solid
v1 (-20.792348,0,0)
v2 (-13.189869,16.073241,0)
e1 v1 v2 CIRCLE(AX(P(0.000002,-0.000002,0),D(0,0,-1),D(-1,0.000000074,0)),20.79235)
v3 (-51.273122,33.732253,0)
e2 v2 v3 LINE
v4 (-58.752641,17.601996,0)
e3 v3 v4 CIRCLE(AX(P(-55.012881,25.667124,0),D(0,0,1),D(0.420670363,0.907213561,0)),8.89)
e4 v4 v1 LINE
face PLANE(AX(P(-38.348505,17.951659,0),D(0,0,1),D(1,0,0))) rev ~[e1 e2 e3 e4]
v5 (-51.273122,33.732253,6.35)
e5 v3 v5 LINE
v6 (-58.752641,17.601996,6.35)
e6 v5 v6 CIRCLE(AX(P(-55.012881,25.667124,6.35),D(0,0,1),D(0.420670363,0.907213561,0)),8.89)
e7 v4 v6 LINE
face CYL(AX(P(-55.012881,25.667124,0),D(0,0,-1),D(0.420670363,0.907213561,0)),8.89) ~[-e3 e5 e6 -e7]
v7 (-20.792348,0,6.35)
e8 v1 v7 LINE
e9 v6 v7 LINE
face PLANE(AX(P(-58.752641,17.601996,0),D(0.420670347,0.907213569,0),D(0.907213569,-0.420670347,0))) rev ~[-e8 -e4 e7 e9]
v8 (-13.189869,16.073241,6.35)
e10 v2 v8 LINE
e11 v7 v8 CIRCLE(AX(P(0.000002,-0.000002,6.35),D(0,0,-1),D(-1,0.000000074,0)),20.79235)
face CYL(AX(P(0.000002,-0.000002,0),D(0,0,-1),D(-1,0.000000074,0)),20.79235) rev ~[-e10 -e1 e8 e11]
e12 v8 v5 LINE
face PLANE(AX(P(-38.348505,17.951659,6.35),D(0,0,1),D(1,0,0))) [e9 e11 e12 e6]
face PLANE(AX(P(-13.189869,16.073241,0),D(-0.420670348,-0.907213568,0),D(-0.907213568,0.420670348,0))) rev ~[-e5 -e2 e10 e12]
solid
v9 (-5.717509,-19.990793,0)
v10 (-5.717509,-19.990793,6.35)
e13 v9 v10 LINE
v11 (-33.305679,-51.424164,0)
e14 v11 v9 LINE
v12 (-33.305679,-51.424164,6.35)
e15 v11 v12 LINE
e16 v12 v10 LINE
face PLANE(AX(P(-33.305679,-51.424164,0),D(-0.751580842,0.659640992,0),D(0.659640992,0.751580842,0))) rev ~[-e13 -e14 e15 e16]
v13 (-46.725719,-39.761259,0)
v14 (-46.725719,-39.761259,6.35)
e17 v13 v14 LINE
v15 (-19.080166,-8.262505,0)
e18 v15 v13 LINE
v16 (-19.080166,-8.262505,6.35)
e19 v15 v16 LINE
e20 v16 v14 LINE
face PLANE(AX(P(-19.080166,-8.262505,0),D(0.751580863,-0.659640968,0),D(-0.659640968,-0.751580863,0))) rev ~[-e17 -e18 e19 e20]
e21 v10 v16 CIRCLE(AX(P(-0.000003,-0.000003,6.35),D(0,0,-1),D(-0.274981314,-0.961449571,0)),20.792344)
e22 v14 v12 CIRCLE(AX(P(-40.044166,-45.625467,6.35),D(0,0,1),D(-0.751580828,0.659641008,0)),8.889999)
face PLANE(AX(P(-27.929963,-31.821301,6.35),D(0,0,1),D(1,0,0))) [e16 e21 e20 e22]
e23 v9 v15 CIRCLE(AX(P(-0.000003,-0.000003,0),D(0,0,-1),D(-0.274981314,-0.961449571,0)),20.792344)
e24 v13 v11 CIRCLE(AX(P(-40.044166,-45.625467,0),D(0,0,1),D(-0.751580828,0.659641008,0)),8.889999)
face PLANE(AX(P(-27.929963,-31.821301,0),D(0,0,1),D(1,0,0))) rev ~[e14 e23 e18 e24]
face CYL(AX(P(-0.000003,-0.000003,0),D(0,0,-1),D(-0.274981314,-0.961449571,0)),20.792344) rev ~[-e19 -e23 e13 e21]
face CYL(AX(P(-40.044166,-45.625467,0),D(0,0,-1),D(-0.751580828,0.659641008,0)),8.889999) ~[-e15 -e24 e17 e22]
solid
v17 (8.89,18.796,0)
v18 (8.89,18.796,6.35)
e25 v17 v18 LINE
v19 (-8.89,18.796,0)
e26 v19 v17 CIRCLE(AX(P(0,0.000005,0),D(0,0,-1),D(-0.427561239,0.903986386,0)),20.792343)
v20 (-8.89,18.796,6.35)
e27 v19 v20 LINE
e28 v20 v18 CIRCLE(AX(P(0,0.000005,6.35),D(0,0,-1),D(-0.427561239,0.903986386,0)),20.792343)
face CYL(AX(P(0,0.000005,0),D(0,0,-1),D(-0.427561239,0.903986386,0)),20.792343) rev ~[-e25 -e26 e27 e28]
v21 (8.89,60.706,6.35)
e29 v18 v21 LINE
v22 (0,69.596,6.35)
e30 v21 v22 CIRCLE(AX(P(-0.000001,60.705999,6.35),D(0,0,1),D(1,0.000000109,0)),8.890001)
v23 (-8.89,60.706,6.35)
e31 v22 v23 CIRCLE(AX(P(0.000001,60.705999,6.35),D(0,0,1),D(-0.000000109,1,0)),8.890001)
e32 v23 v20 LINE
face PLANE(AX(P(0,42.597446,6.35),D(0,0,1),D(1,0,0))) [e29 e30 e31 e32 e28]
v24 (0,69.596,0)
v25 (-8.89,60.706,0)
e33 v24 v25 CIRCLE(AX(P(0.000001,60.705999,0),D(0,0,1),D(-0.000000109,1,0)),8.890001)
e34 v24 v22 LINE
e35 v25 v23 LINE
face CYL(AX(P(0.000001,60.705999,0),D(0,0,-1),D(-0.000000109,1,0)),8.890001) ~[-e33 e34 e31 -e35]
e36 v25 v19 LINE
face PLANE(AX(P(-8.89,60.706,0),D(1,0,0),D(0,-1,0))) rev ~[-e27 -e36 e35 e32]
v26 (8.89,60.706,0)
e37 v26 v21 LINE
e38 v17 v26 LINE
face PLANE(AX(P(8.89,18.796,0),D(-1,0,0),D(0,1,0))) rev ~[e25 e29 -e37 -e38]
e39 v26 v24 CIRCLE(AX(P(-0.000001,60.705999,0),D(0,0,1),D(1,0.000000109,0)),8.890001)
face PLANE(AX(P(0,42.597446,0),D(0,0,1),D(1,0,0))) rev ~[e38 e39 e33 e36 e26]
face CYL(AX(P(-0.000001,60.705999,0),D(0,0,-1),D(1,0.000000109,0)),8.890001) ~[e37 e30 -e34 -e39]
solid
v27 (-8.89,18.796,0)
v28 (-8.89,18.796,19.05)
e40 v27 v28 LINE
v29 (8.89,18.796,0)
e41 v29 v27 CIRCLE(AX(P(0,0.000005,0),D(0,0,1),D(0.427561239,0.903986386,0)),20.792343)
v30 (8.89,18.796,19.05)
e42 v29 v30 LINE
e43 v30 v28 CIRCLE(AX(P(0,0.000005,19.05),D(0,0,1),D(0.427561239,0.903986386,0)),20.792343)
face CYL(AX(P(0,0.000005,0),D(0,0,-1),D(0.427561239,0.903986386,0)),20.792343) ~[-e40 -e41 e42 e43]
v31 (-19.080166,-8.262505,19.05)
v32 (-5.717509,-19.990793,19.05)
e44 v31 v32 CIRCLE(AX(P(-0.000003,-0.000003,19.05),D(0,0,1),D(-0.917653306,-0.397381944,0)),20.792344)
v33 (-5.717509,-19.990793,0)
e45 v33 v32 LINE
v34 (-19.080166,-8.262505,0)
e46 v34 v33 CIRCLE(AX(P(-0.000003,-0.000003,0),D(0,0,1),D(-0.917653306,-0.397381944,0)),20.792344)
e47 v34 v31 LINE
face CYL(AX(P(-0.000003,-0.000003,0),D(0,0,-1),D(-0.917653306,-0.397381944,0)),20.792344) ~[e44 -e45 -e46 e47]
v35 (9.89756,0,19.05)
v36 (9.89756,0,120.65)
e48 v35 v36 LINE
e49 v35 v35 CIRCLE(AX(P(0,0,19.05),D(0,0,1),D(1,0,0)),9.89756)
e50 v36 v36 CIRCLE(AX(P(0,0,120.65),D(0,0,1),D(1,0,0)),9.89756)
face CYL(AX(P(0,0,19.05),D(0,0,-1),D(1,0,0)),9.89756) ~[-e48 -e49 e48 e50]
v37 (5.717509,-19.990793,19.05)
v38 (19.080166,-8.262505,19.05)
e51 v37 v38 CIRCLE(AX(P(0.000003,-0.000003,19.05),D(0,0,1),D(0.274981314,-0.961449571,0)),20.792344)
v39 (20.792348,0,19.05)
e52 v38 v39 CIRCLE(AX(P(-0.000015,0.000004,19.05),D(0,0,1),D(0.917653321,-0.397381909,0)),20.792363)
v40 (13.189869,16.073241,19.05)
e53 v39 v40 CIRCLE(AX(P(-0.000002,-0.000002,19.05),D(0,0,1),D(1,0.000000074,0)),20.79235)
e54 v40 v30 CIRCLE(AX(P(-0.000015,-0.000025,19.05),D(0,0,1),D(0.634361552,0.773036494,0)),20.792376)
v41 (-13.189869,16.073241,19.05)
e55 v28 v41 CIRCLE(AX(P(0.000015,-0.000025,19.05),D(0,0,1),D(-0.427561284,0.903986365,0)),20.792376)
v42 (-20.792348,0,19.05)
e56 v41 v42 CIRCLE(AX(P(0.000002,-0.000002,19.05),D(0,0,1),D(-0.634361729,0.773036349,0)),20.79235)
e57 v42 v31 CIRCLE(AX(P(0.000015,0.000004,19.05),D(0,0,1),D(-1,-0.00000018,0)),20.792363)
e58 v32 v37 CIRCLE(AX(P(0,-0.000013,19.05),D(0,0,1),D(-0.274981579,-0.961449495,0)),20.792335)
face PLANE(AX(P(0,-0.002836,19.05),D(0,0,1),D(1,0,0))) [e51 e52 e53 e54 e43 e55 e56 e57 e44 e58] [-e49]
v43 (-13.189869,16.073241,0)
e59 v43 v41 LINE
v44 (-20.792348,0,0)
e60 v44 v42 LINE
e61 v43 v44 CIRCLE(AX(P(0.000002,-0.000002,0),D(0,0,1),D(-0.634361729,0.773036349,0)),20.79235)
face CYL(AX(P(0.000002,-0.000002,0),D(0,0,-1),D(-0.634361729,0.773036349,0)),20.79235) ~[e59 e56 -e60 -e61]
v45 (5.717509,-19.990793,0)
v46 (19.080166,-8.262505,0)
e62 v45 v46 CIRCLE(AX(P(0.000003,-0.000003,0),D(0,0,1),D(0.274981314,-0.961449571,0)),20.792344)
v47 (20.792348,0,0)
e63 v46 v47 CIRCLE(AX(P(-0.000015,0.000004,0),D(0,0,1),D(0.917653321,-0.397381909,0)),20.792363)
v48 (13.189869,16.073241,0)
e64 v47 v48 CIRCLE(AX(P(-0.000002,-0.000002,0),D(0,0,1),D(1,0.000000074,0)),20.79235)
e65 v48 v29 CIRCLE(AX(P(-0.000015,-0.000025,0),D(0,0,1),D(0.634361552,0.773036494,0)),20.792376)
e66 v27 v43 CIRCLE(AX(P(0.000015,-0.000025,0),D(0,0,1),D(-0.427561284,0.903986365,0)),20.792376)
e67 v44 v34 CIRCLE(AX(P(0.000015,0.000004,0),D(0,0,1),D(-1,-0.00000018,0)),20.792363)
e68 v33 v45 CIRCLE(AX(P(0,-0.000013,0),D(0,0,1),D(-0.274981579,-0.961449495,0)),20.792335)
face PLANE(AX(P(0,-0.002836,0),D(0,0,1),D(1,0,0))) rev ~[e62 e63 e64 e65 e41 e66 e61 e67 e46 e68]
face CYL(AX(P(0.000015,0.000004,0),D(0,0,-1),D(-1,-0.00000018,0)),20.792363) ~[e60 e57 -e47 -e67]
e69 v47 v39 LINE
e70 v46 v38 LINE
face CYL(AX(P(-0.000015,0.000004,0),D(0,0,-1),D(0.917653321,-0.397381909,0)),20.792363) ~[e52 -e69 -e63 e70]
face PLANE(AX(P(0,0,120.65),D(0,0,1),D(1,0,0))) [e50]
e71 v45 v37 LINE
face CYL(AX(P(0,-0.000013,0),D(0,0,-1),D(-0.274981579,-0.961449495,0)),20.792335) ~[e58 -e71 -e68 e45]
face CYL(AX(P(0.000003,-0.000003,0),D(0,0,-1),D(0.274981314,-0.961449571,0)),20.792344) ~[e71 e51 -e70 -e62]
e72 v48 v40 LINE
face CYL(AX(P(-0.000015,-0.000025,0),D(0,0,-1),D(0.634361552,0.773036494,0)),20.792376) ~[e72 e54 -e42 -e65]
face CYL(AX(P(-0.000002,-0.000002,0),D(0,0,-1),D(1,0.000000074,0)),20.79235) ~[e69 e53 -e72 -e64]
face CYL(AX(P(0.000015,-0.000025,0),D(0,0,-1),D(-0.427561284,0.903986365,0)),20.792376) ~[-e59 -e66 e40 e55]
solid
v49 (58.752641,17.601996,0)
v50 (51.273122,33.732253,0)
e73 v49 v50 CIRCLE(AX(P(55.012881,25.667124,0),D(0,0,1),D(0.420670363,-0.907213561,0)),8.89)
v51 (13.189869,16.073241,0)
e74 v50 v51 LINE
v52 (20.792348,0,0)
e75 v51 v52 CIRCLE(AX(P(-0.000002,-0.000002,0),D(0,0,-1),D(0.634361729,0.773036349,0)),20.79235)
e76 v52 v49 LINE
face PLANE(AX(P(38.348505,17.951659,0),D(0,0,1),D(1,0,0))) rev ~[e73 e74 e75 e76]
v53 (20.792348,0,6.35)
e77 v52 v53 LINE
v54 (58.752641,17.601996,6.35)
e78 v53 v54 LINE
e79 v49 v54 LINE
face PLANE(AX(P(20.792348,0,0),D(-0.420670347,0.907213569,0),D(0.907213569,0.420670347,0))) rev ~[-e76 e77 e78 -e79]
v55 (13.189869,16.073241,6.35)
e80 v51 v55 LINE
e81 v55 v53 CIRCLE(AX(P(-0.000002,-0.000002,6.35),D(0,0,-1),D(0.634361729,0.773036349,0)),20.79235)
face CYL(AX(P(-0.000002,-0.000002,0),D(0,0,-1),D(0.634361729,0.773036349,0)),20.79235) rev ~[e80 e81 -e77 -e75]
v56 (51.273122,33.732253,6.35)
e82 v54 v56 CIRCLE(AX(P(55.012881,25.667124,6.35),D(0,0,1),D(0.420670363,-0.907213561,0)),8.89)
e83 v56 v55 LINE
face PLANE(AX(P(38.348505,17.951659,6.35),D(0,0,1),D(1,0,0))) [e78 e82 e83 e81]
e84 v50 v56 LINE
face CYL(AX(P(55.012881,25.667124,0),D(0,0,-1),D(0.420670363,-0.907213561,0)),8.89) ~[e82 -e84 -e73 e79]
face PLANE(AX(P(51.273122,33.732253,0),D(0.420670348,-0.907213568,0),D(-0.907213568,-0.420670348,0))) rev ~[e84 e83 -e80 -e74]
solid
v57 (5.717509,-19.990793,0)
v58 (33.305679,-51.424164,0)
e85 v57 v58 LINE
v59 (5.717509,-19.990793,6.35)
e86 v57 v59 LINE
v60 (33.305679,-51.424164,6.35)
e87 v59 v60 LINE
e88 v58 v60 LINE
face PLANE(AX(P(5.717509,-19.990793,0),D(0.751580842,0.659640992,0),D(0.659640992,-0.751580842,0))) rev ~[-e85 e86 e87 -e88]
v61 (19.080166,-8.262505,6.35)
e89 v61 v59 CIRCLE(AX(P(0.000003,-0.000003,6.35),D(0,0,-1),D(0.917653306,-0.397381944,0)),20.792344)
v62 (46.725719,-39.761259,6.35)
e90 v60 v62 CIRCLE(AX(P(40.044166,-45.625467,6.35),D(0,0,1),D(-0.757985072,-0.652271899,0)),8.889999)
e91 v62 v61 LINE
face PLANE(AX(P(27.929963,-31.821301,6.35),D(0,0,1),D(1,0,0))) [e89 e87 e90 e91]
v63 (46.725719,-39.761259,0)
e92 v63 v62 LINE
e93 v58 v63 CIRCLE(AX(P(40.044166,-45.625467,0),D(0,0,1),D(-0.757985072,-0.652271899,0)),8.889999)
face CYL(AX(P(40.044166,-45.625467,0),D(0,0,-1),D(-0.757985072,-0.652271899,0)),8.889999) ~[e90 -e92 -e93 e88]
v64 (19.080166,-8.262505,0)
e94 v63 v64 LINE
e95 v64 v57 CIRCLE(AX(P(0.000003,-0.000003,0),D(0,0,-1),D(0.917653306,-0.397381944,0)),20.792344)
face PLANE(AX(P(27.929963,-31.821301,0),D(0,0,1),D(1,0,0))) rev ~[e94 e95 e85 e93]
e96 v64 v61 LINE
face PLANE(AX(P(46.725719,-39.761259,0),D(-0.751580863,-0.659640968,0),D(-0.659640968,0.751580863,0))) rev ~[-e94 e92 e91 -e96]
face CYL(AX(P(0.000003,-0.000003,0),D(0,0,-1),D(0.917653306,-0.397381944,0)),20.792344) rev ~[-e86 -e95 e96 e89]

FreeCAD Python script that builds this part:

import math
import FreeCAD as App
import Part
import Sketcher
from FreeCAD import Vector
Q = App.Units.Quantity

doc = App.newDocument("Part")
body = doc.addObject("PartDesign::Body", "Body")
body.AllowCompound = True

# Sketch on XY plane
sketch1 = body.newObject("Sketcher::SketchObject", "Sketch")
sketch1.AttachmentSupport = (doc.getObject("XY_Plane"), [""])
sketch1.MapMode = "FlatFace"
sketch1.addGeometry([
    Part.ArcOfCircle(Part.Circle(Vector(0, 0, 0), Vector(0, 0, 1), 21), math.radians(129), math.radians(180)),  # 0
    Part.LineSegment(Vector(-13, 16, 0), Vector(-51, 34, 0)),  # 1
    Part.ArcOfCircle(Part.Circle(Vector(-55, 26, 0), Vector(0, 0, 1), 9), math.radians(65), math.radians(245)),  # 2
    Part.LineSegment(Vector(-59, 18, 0), Vector(-21, 0, 0)),  # 3
    Part.ArcOfCircle(Part.Circle(Vector(0, 0, 0), Vector(0, 0, 1), 21), math.radians(65), math.radians(115)),  # 4
    Part.LineSegment(Vector(9, 19, 0), Vector(9, 61, 0)),  # 5
    Part.ArcOfCircle(Part.Circle(Vector(0, 61, 0), Vector(0, 0, 1), 9), math.radians(0), math.radians(90)),  # 6
    Part.ArcOfCircle(Part.Circle(Vector(0, 61, 0), Vector(0, 0, 1), 9), math.radians(90), math.radians(180)),  # 7
    Part.LineSegment(Vector(-9, 61, 0), Vector(-9, 19, 0)),  # 8
    Part.ArcOfCircle(Part.Circle(Vector(0, 0, 0), Vector(0, 0, 1), 21), math.radians(0), math.radians(51)),  # 9
    Part.LineSegment(Vector(21, 0, 0), Vector(59, 18, 0)),  # 10
    Part.ArcOfCircle(Part.Circle(Vector(55, 26, 0), Vector(0, 0, 1), 9), math.radians(-65), math.radians(115)),  # 11
    Part.LineSegment(Vector(51, 34, 0), Vector(13, 16, 0)),  # 12
    Part.LineSegment(Vector(47, -40, 0), Vector(19, -8, 0)),  # 13
    Part.ArcOfCircle(Part.Circle(Vector(0, 0, 0), Vector(0, 0, 1), 21), math.radians(-74), math.radians(-23)),  # 14
    Part.LineSegment(Vector(6, -20, 0), Vector(33, -51, 0)),  # 15
    Part.ArcOfCircle(Part.Circle(Vector(40, -46, 0), Vector(0, 0, 1), 9), math.radians(-139), math.radians(41)),  # 16
    Part.LineSegment(Vector(-33, -51, 0), Vector(-6, -20, 0)),  # 17
    Part.ArcOfCircle(Part.Circle(Vector(0, 0, 0), Vector(0, 0, 1), 21), math.radians(-157), math.radians(-106)),  # 18
    Part.LineSegment(Vector(-19, -8, 0), Vector(-47, -40, 0)),  # 19
    Part.ArcOfCircle(Part.Circle(Vector(-40, -46, 0), Vector(0, 0, 1), 9), math.radians(139), math.radians(319)),  # 20
], False)
sketch1.addConstraint([
    Sketcher.Constraint("Coincident", 0, 1, 1, 1),
    Sketcher.Constraint("Tangent", 1, 2, 2, 1),
    Sketcher.Constraint("Tangent", 2, 2, 3, 1),
    Sketcher.Constraint("Coincident", 3, 2, 0, 2),
    Sketcher.Constraint("Coincident", 4, 1, 5, 1),
    Sketcher.Constraint("Tangent", 5, 2, 6, 1),
    Sketcher.Constraint("Tangent", 6, 2, 7, 1),
    Sketcher.Constraint("Tangent", 7, 2, 8, 1),
    Sketcher.Constraint("Coincident", 8, 2, 4, 2),
    Sketcher.Constraint("Coincident", 9, 1, 10, 1),
    Sketcher.Constraint("Tangent", 10, 2, 11, 1),
    Sketcher.Constraint("Tangent", 11, 2, 12, 1),
    Sketcher.Constraint("Coincident", 12, 2, 9, 2),
    Sketcher.Constraint("Coincident", 13, 2, 14, 2),
    Sketcher.Constraint("Coincident", 14, 1, 15, 1),
    Sketcher.Constraint("Coincident", 15, 2, 16, 1),
    Sketcher.Constraint("Tangent", 16, 2, 13, 1),
    Sketcher.Constraint("Coincident", 17, 2, 18, 2),
    Sketcher.Constraint("Coincident", 18, 1, 19, 1),
    Sketcher.Constraint("Tangent", 19, 2, 20, 1),
    Sketcher.Constraint("Coincident", 20, 2, 17, 1),
    Sketcher.Constraint("Vertical", 5),
    Sketcher.Constraint("Vertical", 8),
    Sketcher.Constraint("Coincident", 0, 3, -1, 1),
    Sketcher.Constraint("Coincident", 4, 3, -1, 1),
    Sketcher.Constraint("Coincident", 9, 3, -1, 1),
    Sketcher.Constraint("Coincident", 14, 3, -1, 1),
    Sketcher.Constraint("Coincident", 18, 3, -1, 1),
    Sketcher.Constraint("Equal", 2, 6),
    Sketcher.Constraint("Equal", 6, 7),
    Sketcher.Constraint("Equal", 0, 9),
    Sketcher.Constraint("Equal", 7, 11),
    Sketcher.Constraint("Equal", 4, 14),
    Sketcher.Constraint("Equal", 11, 16),
    Sketcher.Constraint("Equal", 14, 18),
    Sketcher.Constraint("Equal", 16, 20),
    Sketcher.Constraint("Symmetric", 2, 3, 11, 3, -2),
    Sketcher.Constraint("Symmetric", 16, 3, 20, 3, -2),
    Sketcher.Constraint("PointOnObject", 6, 3, -2),
    Sketcher.Constraint("PointOnObject", 3, 2, -1),
    Sketcher.Constraint("PointOnObject", 6, 2, -2),
    Sketcher.Constraint("PointOnObject", 9, 1, -1),
    Sketcher.Constraint("Parallel", 1, 3),
    Sketcher.Constraint("Parallel", 10, 12),
    Sketcher.Constraint("Parallel", 13, 15),
    Sketcher.Constraint("Parallel", 17, 19),
    Sketcher.Constraint("Horizontal", 14, 1, 17, 2),
    Sketcher.Constraint("Horizontal", 15, 2, 20, 2),
    Sketcher.Constraint("Radius", 2, Q("0.35 in")),
    Sketcher.Constraint("DistanceY", 4, 1, 6, 2, Q("2 in")),
    Sketcher.Constraint("Distance", 13, Q("1.65 in")),
    Sketcher.Constraint("DistanceY", -1, 1, 6, 3, Q("2.39 in")),
    Sketcher.Constraint("Radius", 0, Q("20.79235 mm")),
    Sketcher.Constraint("DistanceY", 18, 3, 2, 2, Q("17.601999 mm")),
    Sketcher.Constraint("DistanceY", 18, 1, 18, 3, Q("8.262502 mm")),
    Sketcher.Constraint("Distance", 3, Q("41.842731 mm")),
    Sketcher.Constraint("DistanceX", -1, 1, 15, 2, Q("33.305679 mm")),
    Sketcher.Constraint("DistanceX", -1, 1, 16, 2, Q("46.725719 mm")),
])
pad1 = body.newObject("PartDesign::Pad", "Pad")
pad1.Profile = sketch1
pad1.Length = Q("0.25 in")
body2 = doc.addObject("PartDesign::Body", "Body001")

# Sketch on XY plane
sketch2 = body2.newObject("Sketcher::SketchObject", "Sketch001")
sketch2.AttachmentSupport = (doc.getObject("XY_Plane001"), [""])
sketch2.MapMode = "FlatFace"
sketch2.addGeometry([
    Part.ArcOfCircle(Part.Circle(Vector(-0.000015, 0.000004, 0), Vector(0, 0, 1), 20.792363), math.radians(-23.414611), math.radians(-0.00001)),  # 0
    Part.ArcOfCircle(Part.Circle(Vector(-0.000002, -0.000002, 0), Vector(0, 0, 1), 20.79235), math.radians(0.000004), math.radians(50.627339)),  # 1
    Part.ArcOfCircle(Part.Circle(Vector(-0.000015, -0.000025, 0), Vector(0, 0, 1), 20.792376), math.radians(50.627352), math.radians(64.687108)),  # 2
    Part.ArcOfCircle(Part.Circle(Vector(0, 0.000005, 0), Vector(0, 0, 1), 20.792343), math.radians(64.68711), math.radians(115.31289)),  # 3
    Part.ArcOfCircle(Part.Circle(Vector(0.000015, -0.000025, 0), Vector(0, 0, 1), 20.792376), math.radians(115.312892), math.radians(129.372648)),  # 4
    Part.ArcOfCircle(Part.Circle(Vector(0.000002, -0.000002, 0), Vector(0, 0, 1), 20.79235), math.radians(129.372661), math.radians(179.999996)),  # 5
    Part.ArcOfCircle(Part.Circle(Vector(0.000015, 0.000004, 0), Vector(0, 0, 1), 20.792363), math.radians(-179.99999), math.radians(-156.585389)),  # 6
    Part.ArcOfCircle(Part.Circle(Vector(-0.000003, -0.000003, 0), Vector(0, 0, 1), 20.792344), math.radians(-156.585387), math.radians(-105.960901)),  # 7
    Part.ArcOfCircle(Part.Circle(Vector(0, -0.000013, 0), Vector(0, 0, 1), 20.792335), math.radians(-105.960916), math.radians(-74.039084)),  # 8
    Part.ArcOfCircle(Part.Circle(Vector(0.000003, -0.000003, 0), Vector(0, 0, 1), 20.792344), math.radians(-74.039099), math.radians(-23.414613)),  # 9
], False)
sketch2.addConstraint([
    Sketcher.Constraint("Coincident", 0, 2, 1, 1),
    Sketcher.Constraint("Coincident", 1, 2, 2, 1),
    Sketcher.Constraint("Coincident", 2, 2, 3, 1),
    Sketcher.Constraint("Coincident", 3, 2, 4, 1),
    Sketcher.Constraint("Coincident", 4, 2, 5, 1),
    Sketcher.Constraint("Coincident", 5, 2, 6, 1),
    Sketcher.Constraint("Coincident", 6, 2, 7, 1),
    Sketcher.Constraint("Coincident", 7, 2, 8, 1),
    Sketcher.Constraint("Coincident", 8, 2, 9, 1),
    Sketcher.Constraint("Coincident", 9, 2, 0, 1),
    Sketcher.Constraint("Coincident", 1, 3, -1, 1),
    Sketcher.Constraint("Coincident", 3, 3, -1, 1),
    Sketcher.Constraint("Coincident", 5, 3, -1, 1),
    Sketcher.Constraint("Coincident", 7, 3, -1, 1),
    Sketcher.Constraint("Coincident", 9, 3, -1, 1),
    Sketcher.Constraint("PointOnObject", 8, 3, -2),
    Sketcher.Constraint("PointOnObject", 0, 2, -1),
    Sketcher.Constraint("PointOnObject", 5, 2, -1),
    Sketcher.Constraint("DistanceX", 3, 2, 2, 2, Q("0.7 in")),
    Sketcher.Constraint("DistanceX", -1, 1, 2, 2, Q("0.35 in")),
    Sketcher.Constraint("DistanceY", -1, 1, 2, 2, Q("0.74 in")),
    Sketcher.Constraint("DistanceY", 6, 3, 2, 2, Q("0.7399999 in")),
    Sketcher.Constraint("DistanceY", 0, 3, 3, 2, Q("0.7399999 in")),
    Sketcher.Constraint("Radius", 1, Q("20.79235 mm")),
    Sketcher.Constraint("Radius", 5, Q("20.79235 mm")),
    Sketcher.Constraint("Radius", 0, Q("20.792363 mm")),
    Sketcher.Constraint("Radius", 2, Q("20.792376 mm")),
    Sketcher.Constraint("Radius", 4, Q("20.792376 mm")),
    Sketcher.Constraint("Radius", 8, Q("20.792335 mm")),
    Sketcher.Constraint("DistanceY", 6, 2, 7, 3, Q("8.262502 mm")),
    Sketcher.Constraint("DistanceX", -1, 1, 1, 2, Q("13.189869 mm")),
    Sketcher.Constraint("DistanceX", 4, 2, -1, 1, Q("13.189869 mm")),
    Sketcher.Constraint("DistanceX", 7, 2, -1, 1, Q("5.717509 mm")),
    Sketcher.Constraint("DistanceX", -1, 1, 8, 2, Q("5.717509 mm")),
    Sketcher.Constraint("DistanceY", 8, 2, 9, 2, Q("11.728288 mm")),
])
pad2 = body2.newObject("PartDesign::Pad", "Pad001")
pad2.Profile = sketch2
pad2.Length = Q("0.75 in")

# Sketch on XY plane
sketch3 = body2.newObject("Sketcher::SketchObject", "Sketch002")
sketch3.AttachmentSupport = (doc.getObject("XY_Plane001"), [""])
sketch3.MapMode = "FlatFace"
sketch3.AttachmentOffset = App.Placement(Vector(0, 0, 0.75 * 25.4), App.Rotation())
sketch3.addGeometry(Part.Circle(Vector(0, 0, 0), Vector(0, 0, 1), 10), False)
sketch3.addConstraint([
    Sketcher.Constraint("Coincident", 0, 3, -1, 1),
    Sketcher.Constraint("Diameter", 0, Q("19.79512 mm")),
])
pad3 = body2.newObject("PartDesign::Pad", "Pad002")
pad3.Profile = sketch3
pad3.Length = Q("4 in")

doc.recompute()
